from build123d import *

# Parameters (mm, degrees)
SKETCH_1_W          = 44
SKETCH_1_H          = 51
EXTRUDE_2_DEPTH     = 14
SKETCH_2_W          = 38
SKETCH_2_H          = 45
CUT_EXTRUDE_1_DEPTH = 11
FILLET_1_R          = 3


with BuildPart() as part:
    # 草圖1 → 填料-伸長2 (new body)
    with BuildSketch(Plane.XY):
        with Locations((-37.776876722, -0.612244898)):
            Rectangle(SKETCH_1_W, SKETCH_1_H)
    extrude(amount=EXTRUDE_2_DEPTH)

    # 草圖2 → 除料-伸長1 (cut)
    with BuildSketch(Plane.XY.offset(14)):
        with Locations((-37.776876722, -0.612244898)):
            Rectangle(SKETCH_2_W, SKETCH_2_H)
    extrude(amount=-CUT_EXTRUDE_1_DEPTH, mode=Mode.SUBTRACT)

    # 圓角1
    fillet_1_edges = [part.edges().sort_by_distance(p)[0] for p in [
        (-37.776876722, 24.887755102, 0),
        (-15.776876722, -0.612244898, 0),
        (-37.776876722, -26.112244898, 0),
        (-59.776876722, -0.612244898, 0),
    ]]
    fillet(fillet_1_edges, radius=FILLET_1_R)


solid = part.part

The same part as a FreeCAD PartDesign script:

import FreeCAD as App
import Part
import Sketcher

V = App.Vector


def edges_at(feature, points):
    """Names of the edges that pass closest to the given points."""
    edges = feature.Shape.Edges
    near = lambda p: min(range(len(edges)), key=lambda i: edges[i].distToShape(Part.Vertex(*p))[0])
    return sorted({f"Edge{near(p) + 1}" for p in points})

doc = App.newDocument("Part")
body = doc.addObject("PartDesign::Body", "Body")

# Sketch on XY plane
sketch1 = body.newObject("Sketcher::SketchObject", "Sketch")
sketch1.AttachmentSupport = (doc.getObject("XY_Plane"), [""])
sketch1.MapMode = "FlatFace"
sketch1.addGeometry([
    Part.LineSegment(V(-59.776877, 24.887755, 0), V(-59.776877, -26.112245, 0)),
    Part.LineSegment(V(-59.776877, -26.112245, 0), V(-15.776877, -26.112245, 0)),
    Part.LineSegment(V(-15.776877, -26.112245, 0), V(-15.776877, 24.887755, 0)),
    Part.LineSegment(V(-15.776877, 24.887755, 0), V(-59.776877, 24.887755, 0)),
], False)
sketch1.addConstraint([
    Sketcher.Constraint("Coincident", 0, 2, 1, 1),
    Sketcher.Constraint("Coincident", 1, 2, 2, 1),
    Sketcher.Constraint("Coincident", 2, 2, 3, 1),
    Sketcher.Constraint("Coincident", 3, 2, 0, 1),
    Sketcher.Constraint("Vertical", 0),
    Sketcher.Constraint("Horizontal", 1),
    Sketcher.Constraint("Vertical", 2),
    Sketcher.Constraint("Horizontal", 3),
    Sketcher.Constraint("DistanceX", 1, 1, 1, 2, 44.0),
    Sketcher.Constraint("DistanceY", 0, 2, 0, 1, 51.0),
    Sketcher.Constraint("DistanceX", 0, 2, -1, 1, 59.776877),
    Sketcher.Constraint("DistanceY", 0, 2, -1, 1, 26.112245),
])
pad1 = body.newObject("PartDesign::Pad", "Pad")
pad1.Profile = sketch1
pad1.Length = 14

# Sketch on XY plane
sketch2 = body.newObject("Sketcher::SketchObject", "Sketch001")
sketch2.AttachmentSupport = (doc.getObject("XY_Plane"), [""])
sketch2.MapMode = "FlatFace"
sketch2.AttachmentOffset = App.Placement(V(0, 0, 14), App.Rotation())
sketch2.addGeometry([
    Part.LineSegment(V(-56.776877, 21.887755, 0), V(-56.776877, -23.112245, 0)),
    Part.LineSegment(V(-56.776877, -23.112245, 0), V(-18.776877, -23.112245, 0)),
    Part.LineSegment(V(-18.776877, -23.112245, 0), V(-18.776877, 21.887755, 0)),
    Part.LineSegment(V(-18.776877, 21.887755, 0), V(-56.776877, 21.887755, 0)),
], False)
sketch2.addConstraint([
    Sketcher.Constraint("Coincident", 0, 2, 1, 1),
    Sketcher.Constraint("Coincident", 1, 2, 2, 1),
    Sketcher.Constraint("Coincident", 2, 2, 3, 1),
    Sketcher.Constraint("Coincident", 3, 2, 0, 1),
    Sketcher.Constraint("Vertical", 0),
    Sketcher.Constraint("Horizontal", 1),
    Sketcher.Constraint("Vertical", 2),
    Sketcher.Constraint("Horizontal", 3),
    Sketcher.Constraint("DistanceX", 1, 1, 1, 2, 38.0),
    Sketcher.Constraint("DistanceY", 0, 2, 0, 1, 45.0),
    Sketcher.Constraint("DistanceX", 0, 2, -1, 1, 56.776877),
    Sketcher.Constraint("DistanceY", 0, 2, -1, 1, 23.112245),
])
pocket1 = body.newObject("PartDesign::Pocket", "Pocket")
pocket1.Profile = sketch2
pocket1.Length = 11
doc.recompute()

fillet = body.newObject("PartDesign::Fillet", "Fillet")
fillet.Base = (pocket1, edges_at(pocket1, [
    (-37.777, 24.888, 0),
    (-15.777, -0.612, 0),
    (-37.777, -26.112, 0),
    (-59.777, -0.612, 0),
]))
fillet.Radius = 3

doc.recompute()
